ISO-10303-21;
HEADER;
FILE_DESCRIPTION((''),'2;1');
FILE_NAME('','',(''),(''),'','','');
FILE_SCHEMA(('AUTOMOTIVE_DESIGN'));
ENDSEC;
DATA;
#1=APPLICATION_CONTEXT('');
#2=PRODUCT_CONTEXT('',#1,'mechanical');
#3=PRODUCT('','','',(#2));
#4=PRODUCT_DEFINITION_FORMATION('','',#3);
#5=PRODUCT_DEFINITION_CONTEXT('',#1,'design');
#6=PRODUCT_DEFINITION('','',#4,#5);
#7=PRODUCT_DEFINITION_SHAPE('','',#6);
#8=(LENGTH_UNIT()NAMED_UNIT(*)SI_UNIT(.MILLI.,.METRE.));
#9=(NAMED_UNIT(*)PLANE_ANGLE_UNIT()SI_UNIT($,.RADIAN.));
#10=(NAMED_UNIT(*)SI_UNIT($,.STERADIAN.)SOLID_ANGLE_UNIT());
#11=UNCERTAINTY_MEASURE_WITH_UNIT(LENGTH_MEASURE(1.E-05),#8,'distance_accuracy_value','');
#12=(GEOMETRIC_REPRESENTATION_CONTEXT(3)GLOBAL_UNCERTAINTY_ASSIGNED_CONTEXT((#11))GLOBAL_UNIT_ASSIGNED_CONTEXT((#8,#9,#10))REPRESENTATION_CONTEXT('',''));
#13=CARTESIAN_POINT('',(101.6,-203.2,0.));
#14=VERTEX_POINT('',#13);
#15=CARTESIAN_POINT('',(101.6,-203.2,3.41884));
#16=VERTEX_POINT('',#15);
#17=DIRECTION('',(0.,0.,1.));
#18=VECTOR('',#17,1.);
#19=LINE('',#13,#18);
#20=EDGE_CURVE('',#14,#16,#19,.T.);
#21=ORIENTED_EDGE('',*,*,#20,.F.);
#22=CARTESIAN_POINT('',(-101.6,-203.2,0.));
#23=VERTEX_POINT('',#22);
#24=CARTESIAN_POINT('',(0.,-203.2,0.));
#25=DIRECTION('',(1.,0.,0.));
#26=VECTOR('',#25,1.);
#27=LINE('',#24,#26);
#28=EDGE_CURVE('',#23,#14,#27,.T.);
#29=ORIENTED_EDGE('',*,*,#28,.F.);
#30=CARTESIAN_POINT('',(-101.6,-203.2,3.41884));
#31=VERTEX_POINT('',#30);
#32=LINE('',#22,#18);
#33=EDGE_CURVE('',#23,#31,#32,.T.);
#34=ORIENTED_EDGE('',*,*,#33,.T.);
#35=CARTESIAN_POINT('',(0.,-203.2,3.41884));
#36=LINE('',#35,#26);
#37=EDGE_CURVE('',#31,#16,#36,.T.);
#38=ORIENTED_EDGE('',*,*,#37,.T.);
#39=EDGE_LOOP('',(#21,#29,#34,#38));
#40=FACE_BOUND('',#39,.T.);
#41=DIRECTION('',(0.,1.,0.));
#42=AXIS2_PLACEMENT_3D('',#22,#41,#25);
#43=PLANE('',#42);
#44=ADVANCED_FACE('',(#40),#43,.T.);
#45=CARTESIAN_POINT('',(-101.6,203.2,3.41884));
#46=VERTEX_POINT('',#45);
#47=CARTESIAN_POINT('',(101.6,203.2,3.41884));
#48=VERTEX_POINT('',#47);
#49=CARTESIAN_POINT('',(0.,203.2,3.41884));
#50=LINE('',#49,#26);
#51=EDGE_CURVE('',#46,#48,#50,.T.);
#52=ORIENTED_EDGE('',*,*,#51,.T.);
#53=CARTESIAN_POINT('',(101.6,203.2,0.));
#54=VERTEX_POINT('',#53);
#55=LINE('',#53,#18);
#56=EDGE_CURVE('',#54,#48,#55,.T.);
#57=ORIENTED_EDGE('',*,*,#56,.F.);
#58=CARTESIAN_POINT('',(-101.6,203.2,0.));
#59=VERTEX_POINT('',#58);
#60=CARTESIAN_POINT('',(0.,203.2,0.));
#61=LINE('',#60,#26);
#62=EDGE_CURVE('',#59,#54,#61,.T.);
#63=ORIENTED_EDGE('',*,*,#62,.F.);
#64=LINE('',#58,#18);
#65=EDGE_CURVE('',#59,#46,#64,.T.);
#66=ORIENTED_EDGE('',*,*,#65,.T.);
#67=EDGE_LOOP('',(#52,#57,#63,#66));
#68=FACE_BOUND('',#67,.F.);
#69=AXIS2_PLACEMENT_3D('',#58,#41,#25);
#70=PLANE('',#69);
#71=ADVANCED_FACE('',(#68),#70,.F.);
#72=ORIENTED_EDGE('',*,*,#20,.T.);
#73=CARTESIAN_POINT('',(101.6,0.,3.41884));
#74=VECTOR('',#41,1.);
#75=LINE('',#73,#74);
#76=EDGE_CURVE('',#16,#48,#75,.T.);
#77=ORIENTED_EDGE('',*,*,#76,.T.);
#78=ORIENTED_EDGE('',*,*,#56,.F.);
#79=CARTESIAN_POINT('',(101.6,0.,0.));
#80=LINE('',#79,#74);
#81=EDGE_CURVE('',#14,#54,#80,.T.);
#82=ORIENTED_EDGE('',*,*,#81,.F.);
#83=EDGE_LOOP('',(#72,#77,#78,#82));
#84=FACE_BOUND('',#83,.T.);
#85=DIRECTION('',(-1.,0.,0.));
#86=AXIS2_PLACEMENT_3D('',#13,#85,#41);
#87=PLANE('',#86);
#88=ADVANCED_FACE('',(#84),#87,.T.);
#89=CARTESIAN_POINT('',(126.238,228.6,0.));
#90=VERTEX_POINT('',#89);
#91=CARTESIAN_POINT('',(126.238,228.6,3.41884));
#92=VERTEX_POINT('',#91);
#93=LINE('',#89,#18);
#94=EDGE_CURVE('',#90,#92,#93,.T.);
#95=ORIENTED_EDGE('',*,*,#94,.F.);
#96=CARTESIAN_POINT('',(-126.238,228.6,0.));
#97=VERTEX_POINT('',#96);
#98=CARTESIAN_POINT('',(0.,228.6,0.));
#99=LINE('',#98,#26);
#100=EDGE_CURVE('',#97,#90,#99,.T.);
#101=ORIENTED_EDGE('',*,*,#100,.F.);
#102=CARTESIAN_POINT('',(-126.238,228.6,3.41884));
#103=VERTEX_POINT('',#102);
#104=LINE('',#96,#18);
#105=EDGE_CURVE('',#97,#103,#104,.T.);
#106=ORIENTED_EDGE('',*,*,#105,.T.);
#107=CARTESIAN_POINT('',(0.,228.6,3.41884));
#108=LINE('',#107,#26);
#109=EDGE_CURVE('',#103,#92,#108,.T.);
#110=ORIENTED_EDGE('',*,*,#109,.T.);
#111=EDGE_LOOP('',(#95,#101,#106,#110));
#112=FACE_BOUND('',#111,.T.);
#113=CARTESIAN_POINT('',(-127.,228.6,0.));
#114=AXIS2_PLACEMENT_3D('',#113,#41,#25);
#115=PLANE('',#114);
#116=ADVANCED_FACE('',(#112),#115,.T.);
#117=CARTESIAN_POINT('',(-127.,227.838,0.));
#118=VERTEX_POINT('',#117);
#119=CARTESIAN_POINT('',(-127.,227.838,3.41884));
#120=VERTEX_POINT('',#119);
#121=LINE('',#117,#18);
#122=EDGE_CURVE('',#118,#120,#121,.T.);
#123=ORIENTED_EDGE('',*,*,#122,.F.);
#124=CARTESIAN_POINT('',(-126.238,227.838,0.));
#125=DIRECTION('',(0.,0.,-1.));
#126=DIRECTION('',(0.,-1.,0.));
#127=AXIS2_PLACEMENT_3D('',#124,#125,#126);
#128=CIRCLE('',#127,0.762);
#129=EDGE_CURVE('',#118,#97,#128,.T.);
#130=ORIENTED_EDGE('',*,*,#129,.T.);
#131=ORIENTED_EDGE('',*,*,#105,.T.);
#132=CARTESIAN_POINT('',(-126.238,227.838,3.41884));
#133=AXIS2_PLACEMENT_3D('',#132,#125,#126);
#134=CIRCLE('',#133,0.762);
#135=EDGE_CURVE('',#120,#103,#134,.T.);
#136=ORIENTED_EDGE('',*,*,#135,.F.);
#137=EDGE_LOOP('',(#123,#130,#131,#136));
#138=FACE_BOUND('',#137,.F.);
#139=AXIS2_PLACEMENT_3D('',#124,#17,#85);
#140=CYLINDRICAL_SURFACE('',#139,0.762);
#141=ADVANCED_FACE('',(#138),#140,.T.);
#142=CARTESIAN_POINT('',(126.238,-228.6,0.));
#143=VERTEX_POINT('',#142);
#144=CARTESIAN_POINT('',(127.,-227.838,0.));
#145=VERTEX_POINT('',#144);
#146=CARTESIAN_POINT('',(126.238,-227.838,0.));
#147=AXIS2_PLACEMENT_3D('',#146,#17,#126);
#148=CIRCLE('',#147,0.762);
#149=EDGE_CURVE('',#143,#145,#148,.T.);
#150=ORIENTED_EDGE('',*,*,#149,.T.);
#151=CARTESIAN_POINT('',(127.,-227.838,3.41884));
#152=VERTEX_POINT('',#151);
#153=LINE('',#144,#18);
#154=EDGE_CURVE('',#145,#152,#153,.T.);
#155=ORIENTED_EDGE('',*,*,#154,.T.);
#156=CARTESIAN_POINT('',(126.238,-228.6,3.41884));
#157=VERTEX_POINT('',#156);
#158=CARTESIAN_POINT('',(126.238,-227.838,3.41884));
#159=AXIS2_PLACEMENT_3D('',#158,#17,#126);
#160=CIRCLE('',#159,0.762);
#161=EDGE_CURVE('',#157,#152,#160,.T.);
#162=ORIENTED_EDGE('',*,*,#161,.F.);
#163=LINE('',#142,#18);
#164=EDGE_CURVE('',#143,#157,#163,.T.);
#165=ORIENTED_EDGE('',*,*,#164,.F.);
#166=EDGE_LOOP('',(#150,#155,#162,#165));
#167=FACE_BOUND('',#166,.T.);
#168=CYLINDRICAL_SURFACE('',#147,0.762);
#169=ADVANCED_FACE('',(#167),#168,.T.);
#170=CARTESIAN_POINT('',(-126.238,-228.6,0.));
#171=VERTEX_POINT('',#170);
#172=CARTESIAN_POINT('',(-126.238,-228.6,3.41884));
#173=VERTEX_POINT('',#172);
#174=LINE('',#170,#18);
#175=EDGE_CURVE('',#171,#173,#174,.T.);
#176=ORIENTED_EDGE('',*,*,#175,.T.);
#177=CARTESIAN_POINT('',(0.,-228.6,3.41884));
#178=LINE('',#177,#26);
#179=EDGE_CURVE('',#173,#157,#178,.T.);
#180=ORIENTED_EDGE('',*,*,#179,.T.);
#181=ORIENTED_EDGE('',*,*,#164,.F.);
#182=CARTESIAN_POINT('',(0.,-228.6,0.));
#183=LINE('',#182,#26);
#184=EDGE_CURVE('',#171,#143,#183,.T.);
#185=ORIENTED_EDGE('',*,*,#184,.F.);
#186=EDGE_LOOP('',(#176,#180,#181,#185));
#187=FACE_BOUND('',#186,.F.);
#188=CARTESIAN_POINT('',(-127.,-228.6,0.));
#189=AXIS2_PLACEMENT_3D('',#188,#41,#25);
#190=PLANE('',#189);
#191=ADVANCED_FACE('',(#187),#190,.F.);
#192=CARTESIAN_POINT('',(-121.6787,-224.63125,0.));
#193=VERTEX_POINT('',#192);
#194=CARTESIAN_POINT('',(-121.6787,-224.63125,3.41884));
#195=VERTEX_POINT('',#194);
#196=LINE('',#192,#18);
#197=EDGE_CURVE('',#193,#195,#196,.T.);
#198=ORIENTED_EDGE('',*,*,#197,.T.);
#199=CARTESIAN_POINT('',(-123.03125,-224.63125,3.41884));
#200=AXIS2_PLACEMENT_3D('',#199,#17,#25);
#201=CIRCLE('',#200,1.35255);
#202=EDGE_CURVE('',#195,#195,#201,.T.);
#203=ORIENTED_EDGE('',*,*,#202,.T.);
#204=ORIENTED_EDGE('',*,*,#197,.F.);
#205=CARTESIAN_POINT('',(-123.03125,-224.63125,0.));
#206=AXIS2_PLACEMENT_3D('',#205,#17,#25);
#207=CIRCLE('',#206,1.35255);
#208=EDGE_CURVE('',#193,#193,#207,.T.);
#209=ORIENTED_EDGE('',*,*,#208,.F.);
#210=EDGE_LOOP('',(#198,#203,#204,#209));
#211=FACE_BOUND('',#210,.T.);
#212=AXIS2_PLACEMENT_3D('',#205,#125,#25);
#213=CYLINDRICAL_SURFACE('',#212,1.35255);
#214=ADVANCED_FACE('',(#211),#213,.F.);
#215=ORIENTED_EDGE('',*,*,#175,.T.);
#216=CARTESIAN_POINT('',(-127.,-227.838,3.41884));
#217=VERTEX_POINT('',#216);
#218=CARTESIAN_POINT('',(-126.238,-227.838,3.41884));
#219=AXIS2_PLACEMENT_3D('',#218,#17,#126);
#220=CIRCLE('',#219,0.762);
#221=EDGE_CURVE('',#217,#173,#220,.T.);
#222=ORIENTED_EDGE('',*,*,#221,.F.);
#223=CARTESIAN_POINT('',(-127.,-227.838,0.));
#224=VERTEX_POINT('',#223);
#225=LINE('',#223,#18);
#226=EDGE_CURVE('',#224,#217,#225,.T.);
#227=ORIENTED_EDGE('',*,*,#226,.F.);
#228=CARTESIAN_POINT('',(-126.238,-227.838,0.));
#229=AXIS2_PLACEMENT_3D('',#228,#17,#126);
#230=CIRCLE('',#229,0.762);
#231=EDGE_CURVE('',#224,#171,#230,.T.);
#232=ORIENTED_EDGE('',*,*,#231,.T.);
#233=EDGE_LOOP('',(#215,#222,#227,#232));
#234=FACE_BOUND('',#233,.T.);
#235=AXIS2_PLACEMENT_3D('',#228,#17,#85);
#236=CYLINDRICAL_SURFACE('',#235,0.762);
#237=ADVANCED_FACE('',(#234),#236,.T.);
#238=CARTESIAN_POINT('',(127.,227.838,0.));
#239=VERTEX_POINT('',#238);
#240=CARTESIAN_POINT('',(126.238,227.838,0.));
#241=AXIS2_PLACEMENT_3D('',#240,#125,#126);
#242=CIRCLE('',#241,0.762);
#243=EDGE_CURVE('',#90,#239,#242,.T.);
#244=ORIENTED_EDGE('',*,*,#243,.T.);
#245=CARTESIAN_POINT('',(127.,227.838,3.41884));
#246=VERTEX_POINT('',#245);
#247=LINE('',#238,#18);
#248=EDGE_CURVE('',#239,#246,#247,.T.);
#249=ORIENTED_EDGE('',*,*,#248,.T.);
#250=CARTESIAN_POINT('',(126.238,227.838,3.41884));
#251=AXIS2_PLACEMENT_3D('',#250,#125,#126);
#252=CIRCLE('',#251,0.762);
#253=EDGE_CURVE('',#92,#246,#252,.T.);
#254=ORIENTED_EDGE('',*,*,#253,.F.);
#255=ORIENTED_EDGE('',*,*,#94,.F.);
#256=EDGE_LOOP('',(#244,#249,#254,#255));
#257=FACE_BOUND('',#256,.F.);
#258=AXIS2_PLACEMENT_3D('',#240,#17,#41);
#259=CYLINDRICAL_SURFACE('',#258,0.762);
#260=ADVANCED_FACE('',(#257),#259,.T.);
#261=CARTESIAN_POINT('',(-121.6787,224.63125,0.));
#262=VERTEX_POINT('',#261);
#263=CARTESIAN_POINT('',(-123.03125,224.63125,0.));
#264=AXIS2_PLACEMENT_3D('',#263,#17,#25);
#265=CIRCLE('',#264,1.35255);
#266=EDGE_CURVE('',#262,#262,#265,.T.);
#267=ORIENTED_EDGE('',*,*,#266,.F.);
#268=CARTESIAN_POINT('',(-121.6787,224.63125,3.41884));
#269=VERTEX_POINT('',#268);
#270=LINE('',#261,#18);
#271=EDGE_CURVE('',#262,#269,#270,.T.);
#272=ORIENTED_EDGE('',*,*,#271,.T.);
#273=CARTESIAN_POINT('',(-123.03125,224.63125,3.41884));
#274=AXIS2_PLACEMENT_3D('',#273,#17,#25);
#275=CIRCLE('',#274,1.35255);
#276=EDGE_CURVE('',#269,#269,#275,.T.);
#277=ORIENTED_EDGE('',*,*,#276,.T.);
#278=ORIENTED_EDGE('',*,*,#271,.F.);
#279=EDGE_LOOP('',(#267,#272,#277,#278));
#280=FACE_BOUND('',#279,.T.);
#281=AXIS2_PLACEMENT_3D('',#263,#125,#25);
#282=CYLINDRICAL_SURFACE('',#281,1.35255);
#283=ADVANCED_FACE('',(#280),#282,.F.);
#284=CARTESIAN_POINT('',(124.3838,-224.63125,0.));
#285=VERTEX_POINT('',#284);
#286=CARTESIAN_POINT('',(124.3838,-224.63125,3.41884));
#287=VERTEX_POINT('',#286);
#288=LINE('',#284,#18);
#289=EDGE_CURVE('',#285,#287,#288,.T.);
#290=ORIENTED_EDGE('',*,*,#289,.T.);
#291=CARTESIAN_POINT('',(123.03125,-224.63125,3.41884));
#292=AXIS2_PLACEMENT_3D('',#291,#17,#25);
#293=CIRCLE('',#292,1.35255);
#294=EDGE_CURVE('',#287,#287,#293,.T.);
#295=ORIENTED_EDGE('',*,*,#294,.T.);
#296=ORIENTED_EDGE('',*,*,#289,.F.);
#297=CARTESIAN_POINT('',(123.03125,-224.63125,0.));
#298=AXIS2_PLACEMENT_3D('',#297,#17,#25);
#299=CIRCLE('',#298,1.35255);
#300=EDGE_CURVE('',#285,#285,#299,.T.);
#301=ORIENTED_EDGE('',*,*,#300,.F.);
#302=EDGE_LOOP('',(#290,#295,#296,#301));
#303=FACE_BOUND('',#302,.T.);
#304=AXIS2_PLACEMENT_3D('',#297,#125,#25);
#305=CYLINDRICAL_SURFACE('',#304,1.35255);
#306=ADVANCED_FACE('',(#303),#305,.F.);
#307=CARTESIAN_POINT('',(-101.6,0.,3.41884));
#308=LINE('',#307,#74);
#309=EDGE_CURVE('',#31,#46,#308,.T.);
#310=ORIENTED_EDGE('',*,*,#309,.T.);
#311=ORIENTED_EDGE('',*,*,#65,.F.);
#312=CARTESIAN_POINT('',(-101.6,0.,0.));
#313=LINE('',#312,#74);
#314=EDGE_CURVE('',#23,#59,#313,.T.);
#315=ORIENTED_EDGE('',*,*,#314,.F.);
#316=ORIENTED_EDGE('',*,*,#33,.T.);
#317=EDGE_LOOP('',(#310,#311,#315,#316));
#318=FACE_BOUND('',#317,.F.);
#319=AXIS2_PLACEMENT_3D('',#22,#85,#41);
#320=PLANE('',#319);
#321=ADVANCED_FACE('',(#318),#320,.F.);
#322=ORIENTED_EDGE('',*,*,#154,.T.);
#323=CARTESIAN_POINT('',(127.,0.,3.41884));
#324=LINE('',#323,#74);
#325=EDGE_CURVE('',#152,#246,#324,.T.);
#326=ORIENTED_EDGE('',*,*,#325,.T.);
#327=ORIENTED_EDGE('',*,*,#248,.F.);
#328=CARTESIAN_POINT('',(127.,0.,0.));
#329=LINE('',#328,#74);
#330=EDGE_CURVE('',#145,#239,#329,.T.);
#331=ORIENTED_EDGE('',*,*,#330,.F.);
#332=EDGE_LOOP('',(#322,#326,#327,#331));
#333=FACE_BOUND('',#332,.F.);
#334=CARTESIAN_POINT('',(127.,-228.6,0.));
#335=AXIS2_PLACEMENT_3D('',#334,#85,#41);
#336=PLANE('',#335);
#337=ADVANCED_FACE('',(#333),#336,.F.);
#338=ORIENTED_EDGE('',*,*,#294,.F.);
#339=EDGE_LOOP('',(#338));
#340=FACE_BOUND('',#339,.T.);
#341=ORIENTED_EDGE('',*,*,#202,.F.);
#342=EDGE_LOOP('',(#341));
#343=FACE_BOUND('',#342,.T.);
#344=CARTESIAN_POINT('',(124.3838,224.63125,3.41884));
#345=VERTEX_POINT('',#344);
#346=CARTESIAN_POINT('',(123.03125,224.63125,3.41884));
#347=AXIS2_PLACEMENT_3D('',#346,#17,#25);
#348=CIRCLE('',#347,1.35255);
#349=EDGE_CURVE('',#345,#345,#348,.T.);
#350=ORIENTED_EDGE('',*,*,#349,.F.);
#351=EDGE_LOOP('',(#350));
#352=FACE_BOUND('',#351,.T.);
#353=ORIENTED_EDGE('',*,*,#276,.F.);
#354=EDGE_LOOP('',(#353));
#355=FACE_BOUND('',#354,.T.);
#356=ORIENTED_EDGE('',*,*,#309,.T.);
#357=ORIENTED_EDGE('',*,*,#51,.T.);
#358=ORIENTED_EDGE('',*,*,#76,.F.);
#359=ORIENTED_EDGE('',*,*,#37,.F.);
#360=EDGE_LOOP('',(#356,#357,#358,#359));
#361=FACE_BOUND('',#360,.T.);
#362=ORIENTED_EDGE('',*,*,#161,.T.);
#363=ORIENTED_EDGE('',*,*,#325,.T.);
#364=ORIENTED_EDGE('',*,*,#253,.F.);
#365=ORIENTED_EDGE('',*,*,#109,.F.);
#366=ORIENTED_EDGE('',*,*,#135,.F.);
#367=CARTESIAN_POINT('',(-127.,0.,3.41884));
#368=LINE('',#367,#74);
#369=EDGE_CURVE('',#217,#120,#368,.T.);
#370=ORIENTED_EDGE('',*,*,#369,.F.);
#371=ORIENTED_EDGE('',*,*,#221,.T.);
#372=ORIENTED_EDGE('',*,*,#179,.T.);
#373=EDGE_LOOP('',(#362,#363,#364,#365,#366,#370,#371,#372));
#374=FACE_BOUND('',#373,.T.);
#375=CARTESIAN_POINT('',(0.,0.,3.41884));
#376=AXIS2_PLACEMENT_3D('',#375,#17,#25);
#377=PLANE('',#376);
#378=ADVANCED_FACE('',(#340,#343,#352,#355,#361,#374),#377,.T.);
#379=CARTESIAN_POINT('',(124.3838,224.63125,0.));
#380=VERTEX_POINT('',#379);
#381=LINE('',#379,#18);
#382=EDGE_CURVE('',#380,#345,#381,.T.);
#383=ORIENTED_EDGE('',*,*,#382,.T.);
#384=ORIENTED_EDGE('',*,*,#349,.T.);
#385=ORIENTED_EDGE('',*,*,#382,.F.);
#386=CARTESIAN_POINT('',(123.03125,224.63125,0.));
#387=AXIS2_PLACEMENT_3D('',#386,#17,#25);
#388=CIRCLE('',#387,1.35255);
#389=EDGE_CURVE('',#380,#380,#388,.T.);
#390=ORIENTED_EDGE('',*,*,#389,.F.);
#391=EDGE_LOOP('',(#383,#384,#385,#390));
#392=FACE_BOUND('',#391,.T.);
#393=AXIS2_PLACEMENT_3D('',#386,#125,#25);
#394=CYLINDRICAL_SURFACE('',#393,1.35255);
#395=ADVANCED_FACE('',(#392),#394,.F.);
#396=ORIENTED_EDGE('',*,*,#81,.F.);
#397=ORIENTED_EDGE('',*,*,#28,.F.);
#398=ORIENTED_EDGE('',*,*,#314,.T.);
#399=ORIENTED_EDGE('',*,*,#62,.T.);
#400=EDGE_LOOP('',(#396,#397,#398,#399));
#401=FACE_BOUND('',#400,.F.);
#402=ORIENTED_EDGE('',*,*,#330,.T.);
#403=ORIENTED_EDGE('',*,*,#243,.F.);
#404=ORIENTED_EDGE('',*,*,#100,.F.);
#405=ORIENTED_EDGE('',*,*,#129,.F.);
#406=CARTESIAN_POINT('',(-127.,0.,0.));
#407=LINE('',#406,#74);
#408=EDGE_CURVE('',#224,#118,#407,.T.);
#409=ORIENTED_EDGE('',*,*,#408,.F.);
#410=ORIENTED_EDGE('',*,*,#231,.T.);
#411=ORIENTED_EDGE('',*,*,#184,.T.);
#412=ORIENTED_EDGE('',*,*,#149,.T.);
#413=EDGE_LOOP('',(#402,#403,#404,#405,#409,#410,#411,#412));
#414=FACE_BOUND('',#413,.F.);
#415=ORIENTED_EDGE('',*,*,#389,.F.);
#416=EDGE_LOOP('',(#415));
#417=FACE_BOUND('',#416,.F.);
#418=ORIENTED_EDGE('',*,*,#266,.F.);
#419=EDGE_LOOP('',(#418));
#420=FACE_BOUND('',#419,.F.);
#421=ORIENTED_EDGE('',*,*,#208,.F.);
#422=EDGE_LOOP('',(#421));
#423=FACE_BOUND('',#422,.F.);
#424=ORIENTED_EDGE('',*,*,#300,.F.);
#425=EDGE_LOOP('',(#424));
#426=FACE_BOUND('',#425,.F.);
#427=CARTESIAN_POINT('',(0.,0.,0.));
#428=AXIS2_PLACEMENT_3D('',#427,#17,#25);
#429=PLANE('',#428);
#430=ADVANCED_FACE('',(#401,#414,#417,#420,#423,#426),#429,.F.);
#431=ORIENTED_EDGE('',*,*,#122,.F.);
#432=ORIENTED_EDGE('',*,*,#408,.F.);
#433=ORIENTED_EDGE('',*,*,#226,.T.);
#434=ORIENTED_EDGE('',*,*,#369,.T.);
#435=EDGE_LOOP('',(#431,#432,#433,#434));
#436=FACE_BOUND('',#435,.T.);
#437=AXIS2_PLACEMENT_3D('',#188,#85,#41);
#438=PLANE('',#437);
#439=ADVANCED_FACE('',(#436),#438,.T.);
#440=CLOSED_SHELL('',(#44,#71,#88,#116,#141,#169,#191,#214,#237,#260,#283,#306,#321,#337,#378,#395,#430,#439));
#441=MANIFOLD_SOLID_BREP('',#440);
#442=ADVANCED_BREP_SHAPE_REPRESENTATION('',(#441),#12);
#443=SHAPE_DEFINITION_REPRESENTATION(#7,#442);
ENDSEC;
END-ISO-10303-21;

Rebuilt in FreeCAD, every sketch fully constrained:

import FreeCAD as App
import Part
import Sketcher

V = App.Vector
Q = App.Units.Quantity


def edges_at(feature, points):
    """Names of the edges that pass closest to the given points."""
    edges = feature.Shape.Edges
    near = lambda p: min(range(len(edges)), key=lambda i: edges[i].distToShape(Part.Vertex(*p))[0])
    return sorted({f"Edge{near(p) + 1}" for p in points})

doc = App.newDocument("Part")
body = doc.addObject("PartDesign::Body", "Body")

sketch1 = doc.addObject("Sketcher::SketchObject", "Sketch")
body.addObject(sketch1)
sketch1.AttachmentSupport = (doc.XY_Plane, [""])
sketch1.MapMode = "FlatFace"
sketch1.addGeometry(Part.LineSegment(V(-127, 228.6, 0), V(-127, -228.6, 0)), False)
sketch1.addGeometry(Part.LineSegment(V(-127, -228.6, 0), V(127, -228.6, 0)), False)
sketch1.addGeometry(Part.LineSegment(V(127, -228.6, 0), V(127, 228.6, 0)), False)
sketch1.addGeometry(Part.LineSegment(V(127, 228.6, 0), V(-127, 228.6, 0)), False)
sketch1.addGeometry(Part.Circle(V(-123, -224.6, 0), V(0, 0, 1), 1.4), False)
sketch1.addGeometry(Part.Circle(V(123, -224.6, 0), V(0, 0, 1), 1.4), False)
sketch1.addGeometry(Part.Circle(V(-123, 224.6, 0), V(0, 0, 1), 1.4), False)
sketch1.addGeometry(Part.LineSegment(V(101.6, -203.2, 0), V(-101.6, -203.2, 0)), False)
sketch1.addGeometry(Part.LineSegment(V(-101.6, -203.2, 0), V(-101.6, 203.2, 0)), False)
sketch1.addGeometry(Part.LineSegment(V(-101.6, 203.2, 0), V(101.6, 203.2, 0)), False)
sketch1.addGeometry(Part.LineSegment(V(101.6, 203.2, 0), V(101.6, -203.2, 0)), False)
sketch1.addGeometry(Part.Circle(V(123, 224.6, 0), V(0, 0, 1), 1.4), False)
sketch1.addConstraint(Sketcher.Constraint("Coincident", 0, 2, 1, 1))
sketch1.addConstraint(Sketcher.Constraint("Coincident", 1, 2, 2, 1))
sketch1.addConstraint(Sketcher.Constraint("Coincident", 2, 2, 3, 1))
sketch1.addConstraint(Sketcher.Constraint("Coincident", 3, 2, 0, 1))
sketch1.addConstraint(Sketcher.Constraint("Coincident", 7, 2, 8, 1))
sketch1.addConstraint(Sketcher.Constraint("Coincident", 8, 2, 9, 1))
sketch1.addConstraint(Sketcher.Constraint("Coincident", 9, 2, 10, 1))
sketch1.addConstraint(Sketcher.Constraint("Coincident", 10, 2, 7, 1))
sketch1.addConstraint(Sketcher.Constraint("Vertical", 0))
sketch1.addConstraint(Sketcher.Constraint("Horizontal", 1))
sketch1.addConstraint(Sketcher.Constraint("Vertical", 2))
sketch1.addConstraint(Sketcher.Constraint("Horizontal", 3))
sketch1.addConstraint(Sketcher.Constraint("Horizontal", 7))
sketch1.addConstraint(Sketcher.Constraint("Vertical", 8))
sketch1.addConstraint(Sketcher.Constraint("Horizontal", 9))
sketch1.addConstraint(Sketcher.Constraint("Vertical", 10))
sketch1.addConstraint(Sketcher.Constraint("Equal", 4, 5))
sketch1.addConstraint(Sketcher.Constraint("Equal", 5, 6))
sketch1.addConstraint(Sketcher.Constraint("Equal", 6, 11))
sketch1.addConstraint(Sketcher.Constraint("Symmetric", 5, 3, 6, 3, -1, 1))
sketch1.addConstraint(Sketcher.Constraint("Symmetric", 4, 3, 11, 3, -1, 1))
sketch1.addConstraint(Sketcher.Constraint("Symmetric", 0, 2, 2, 2, -1, 1))
sketch1.addConstraint(Sketcher.Constraint("Symmetric", 7, 2, 9, 2, -1, 1))
sketch1.addConstraint(Sketcher.Constraint("Symmetric", 4, 3, 5, 3, -2))
sketch1.addConstraint(Sketcher.Constraint("DistanceX", 1, 1, 1, 2, Q("10 in")))
sketch1.addConstraint(Sketcher.Constraint("DistanceX", 7, 2, 7, 1, Q("8 in")))
sketch1.addConstraint(Sketcher.Constraint("DistanceY", 0, 2, 0, 1, Q("18 in")))
sketch1.addConstraint(Sketcher.Constraint("DistanceY", 8, 1, 8, 2, Q("16 in")))
sketch1.addConstraint(Sketcher.Constraint("Diameter", 4, Q("0.1065 in")))
sketch1.addConstraint(Sketcher.Constraint("DistanceX", 4, 3, -1, 1, Q("4.84375 in")))
sketch1.addConstraint(Sketcher.Constraint("DistanceY", 4, 3, -1, 1, Q("8.84375 in")))
pad1 = doc.addObject("PartDesign::Pad", "Pad")
body.addObject(pad1)
pad1.Profile = sketch1
pad1.Length = Q("0.1346 in")
doc.recompute()

fillet = doc.addObject("PartDesign::Fillet", "Fillet")
body.addObject(fillet)
fillet.Base = (pad1, edges_at(pad1, [
    (-127, 228.6, 1.709),
    (-127, -228.6, 1.709),
    (127, -228.6, 1.709),
    (127, 228.6, 1.709),
]))
fillet.Radius = Q("0.03 in")

doc.recompute()
